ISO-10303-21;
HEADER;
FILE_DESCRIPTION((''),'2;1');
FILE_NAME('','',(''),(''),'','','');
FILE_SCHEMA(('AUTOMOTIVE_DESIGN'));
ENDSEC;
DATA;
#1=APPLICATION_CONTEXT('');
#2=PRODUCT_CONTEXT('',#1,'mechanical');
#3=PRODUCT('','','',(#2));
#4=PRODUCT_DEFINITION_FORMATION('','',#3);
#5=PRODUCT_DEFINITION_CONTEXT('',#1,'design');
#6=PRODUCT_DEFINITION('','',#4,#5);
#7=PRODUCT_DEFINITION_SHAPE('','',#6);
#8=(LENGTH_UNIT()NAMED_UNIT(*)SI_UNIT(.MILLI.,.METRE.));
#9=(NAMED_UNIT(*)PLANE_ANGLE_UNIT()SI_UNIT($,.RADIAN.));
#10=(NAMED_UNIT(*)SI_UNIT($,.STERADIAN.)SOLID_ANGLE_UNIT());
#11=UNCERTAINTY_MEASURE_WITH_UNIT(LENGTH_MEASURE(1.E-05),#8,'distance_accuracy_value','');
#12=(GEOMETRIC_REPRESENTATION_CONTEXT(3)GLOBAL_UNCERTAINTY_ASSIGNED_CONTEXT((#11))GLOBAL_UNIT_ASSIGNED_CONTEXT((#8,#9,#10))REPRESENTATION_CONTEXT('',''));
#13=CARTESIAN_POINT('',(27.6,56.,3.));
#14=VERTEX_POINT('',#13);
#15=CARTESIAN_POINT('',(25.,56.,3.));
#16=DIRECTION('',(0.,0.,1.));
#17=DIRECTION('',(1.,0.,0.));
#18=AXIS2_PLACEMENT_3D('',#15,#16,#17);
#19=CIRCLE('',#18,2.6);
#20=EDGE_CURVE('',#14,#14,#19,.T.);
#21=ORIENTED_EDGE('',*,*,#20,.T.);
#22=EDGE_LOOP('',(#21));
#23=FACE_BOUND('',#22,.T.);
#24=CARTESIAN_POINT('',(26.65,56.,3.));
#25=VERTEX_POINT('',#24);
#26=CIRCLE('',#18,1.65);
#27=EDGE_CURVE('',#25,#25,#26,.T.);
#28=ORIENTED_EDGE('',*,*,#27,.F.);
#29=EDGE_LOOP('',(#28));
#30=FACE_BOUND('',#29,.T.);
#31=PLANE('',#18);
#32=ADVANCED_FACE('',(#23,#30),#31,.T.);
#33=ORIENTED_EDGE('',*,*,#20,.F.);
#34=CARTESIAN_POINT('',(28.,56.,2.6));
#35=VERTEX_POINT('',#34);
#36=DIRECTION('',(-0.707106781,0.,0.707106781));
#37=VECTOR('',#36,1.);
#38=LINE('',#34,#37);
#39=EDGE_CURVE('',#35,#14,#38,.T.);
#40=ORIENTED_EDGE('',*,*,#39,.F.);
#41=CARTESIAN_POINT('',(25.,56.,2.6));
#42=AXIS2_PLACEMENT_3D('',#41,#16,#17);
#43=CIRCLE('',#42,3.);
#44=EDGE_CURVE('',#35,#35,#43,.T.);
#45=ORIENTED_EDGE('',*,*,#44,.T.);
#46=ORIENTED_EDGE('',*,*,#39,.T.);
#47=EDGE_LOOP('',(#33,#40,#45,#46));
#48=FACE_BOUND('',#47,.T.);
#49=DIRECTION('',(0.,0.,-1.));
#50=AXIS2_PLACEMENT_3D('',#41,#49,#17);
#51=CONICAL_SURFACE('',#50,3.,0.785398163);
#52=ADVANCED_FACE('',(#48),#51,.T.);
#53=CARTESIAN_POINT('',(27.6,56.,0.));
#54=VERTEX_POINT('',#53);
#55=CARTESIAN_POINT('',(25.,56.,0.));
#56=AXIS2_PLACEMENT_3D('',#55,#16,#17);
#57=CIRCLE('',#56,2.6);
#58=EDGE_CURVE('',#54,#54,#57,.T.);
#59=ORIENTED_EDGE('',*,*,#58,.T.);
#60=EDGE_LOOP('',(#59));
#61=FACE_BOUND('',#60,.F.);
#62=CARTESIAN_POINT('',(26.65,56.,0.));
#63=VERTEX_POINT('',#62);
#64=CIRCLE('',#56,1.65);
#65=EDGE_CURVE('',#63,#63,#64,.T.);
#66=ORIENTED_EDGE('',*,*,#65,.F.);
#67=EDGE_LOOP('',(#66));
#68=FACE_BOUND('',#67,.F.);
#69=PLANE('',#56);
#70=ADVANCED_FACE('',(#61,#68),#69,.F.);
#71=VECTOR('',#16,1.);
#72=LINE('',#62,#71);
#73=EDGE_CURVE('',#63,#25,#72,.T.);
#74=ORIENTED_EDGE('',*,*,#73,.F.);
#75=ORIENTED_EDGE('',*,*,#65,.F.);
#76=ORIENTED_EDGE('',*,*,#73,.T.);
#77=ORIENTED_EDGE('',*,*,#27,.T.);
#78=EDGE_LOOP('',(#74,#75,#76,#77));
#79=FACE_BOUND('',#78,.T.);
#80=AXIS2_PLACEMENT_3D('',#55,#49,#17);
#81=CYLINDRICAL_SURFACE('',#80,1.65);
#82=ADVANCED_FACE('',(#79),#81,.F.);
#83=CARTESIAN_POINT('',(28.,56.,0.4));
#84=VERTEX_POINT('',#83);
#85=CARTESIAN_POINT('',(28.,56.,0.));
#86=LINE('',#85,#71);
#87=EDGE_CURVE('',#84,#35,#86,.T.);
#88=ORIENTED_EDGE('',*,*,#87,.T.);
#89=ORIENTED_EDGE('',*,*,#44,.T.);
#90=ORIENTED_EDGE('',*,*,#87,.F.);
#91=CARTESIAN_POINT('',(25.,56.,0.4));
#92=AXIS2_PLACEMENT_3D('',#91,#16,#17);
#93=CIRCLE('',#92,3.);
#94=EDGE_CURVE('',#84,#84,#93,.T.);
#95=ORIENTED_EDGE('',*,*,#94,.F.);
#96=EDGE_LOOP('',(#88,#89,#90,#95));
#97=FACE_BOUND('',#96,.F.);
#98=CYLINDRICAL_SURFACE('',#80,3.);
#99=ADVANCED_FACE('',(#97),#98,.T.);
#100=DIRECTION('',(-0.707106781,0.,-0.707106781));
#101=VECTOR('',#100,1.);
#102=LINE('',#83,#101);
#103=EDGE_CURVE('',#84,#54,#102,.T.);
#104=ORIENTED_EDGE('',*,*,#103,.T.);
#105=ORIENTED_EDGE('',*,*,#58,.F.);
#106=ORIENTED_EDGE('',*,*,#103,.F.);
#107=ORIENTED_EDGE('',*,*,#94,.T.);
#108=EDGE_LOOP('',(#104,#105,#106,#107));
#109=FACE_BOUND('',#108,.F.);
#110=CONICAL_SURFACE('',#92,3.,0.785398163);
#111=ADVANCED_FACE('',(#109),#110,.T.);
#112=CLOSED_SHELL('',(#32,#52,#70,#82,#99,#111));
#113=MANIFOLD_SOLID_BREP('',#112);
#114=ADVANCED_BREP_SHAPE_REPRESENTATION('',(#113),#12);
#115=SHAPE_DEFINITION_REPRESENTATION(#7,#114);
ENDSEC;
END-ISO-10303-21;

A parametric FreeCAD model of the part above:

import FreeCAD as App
import Part
import Sketcher

V = App.Vector


def edges_at(feature, points):
    """Names of the edges that pass closest to the given points."""
    edges = feature.Shape.Edges
    near = lambda p: min(range(len(edges)), key=lambda i: edges[i].distToShape(Part.Vertex(*p))[0])
    return sorted({f"Edge{near(p) + 1}" for p in points})

doc = App.newDocument("Part")
body = doc.addObject("PartDesign::Body", "Body")

sketch1 = doc.addObject("Sketcher::SketchObject", "Sketch")
body.addObject(sketch1)
sketch1.AttachmentSupport = (doc.XY_Plane, [""])
sketch1.MapMode = "FlatFace"
sketch1.addGeometry(Part.Circle(V(0, 0, 0), V(0, 0, 1), 1.6), False)
sketch1.addConstraint(Sketcher.Constraint("Coincident", 0, 3, -1, 1))
sketch1.addConstraint(Sketcher.Constraint("Diameter", 0, 3.3))
pad1 = doc.addObject("PartDesign::Pad", "Pad")
body.addObject(pad1)
pad1.Profile = sketch1
pad1.Length = 3
body2 = doc.addObject("PartDesign::Body", "Body001")

sketch2 = doc.addObject("Sketcher::SketchObject", "Sketch001")
body2.addObject(sketch2)
sketch2.AttachmentSupport = (doc.getObject("XY_Plane001"), [""])
sketch2.MapMode = "FlatFace"
sketch2.addGeometry(Part.Circle(V(0, 0, 0), V(0, 0, 1), 3), False)
sketch2.addConstraint(Sketcher.Constraint("Coincident", 0, 3, -1, 1))
sketch2.addConstraint(Sketcher.Constraint("Diameter", 0, 6.0))
pad2 = doc.addObject("PartDesign::Pad", "Pad001")
body2.addObject(pad2)
pad2.Profile = sketch2
pad2.Length = 3
doc.recompute()

boolean = doc.addObject("PartDesign::Boolean", "Boolean")
body2.addObject(boolean)
boolean.Type = "Cut"
boolean.addObjects([body])
doc.recompute()

chamfer = doc.addObject("PartDesign::Chamfer", "Chamfer")
body2.addObject(chamfer)
chamfer.Base = (boolean, edges_at(boolean, [(-3, 0, 3), (-3, 0, 0)]))
chamfer.Size = 0.4
body3 = doc.addObject("PartDesign::Body", "Body002")
doc.recompute()

body2.Placement = App.Placement(V(25, 56, 0), App.Rotation(V(0, 0, 1), 0))
boolean2 = doc.addObject("PartDesign::Boolean", "Boolean001")
body3.addObject(boolean2)
boolean2.Type = "Fuse"
boolean2.addObjects([body2])

doc.recompute()
